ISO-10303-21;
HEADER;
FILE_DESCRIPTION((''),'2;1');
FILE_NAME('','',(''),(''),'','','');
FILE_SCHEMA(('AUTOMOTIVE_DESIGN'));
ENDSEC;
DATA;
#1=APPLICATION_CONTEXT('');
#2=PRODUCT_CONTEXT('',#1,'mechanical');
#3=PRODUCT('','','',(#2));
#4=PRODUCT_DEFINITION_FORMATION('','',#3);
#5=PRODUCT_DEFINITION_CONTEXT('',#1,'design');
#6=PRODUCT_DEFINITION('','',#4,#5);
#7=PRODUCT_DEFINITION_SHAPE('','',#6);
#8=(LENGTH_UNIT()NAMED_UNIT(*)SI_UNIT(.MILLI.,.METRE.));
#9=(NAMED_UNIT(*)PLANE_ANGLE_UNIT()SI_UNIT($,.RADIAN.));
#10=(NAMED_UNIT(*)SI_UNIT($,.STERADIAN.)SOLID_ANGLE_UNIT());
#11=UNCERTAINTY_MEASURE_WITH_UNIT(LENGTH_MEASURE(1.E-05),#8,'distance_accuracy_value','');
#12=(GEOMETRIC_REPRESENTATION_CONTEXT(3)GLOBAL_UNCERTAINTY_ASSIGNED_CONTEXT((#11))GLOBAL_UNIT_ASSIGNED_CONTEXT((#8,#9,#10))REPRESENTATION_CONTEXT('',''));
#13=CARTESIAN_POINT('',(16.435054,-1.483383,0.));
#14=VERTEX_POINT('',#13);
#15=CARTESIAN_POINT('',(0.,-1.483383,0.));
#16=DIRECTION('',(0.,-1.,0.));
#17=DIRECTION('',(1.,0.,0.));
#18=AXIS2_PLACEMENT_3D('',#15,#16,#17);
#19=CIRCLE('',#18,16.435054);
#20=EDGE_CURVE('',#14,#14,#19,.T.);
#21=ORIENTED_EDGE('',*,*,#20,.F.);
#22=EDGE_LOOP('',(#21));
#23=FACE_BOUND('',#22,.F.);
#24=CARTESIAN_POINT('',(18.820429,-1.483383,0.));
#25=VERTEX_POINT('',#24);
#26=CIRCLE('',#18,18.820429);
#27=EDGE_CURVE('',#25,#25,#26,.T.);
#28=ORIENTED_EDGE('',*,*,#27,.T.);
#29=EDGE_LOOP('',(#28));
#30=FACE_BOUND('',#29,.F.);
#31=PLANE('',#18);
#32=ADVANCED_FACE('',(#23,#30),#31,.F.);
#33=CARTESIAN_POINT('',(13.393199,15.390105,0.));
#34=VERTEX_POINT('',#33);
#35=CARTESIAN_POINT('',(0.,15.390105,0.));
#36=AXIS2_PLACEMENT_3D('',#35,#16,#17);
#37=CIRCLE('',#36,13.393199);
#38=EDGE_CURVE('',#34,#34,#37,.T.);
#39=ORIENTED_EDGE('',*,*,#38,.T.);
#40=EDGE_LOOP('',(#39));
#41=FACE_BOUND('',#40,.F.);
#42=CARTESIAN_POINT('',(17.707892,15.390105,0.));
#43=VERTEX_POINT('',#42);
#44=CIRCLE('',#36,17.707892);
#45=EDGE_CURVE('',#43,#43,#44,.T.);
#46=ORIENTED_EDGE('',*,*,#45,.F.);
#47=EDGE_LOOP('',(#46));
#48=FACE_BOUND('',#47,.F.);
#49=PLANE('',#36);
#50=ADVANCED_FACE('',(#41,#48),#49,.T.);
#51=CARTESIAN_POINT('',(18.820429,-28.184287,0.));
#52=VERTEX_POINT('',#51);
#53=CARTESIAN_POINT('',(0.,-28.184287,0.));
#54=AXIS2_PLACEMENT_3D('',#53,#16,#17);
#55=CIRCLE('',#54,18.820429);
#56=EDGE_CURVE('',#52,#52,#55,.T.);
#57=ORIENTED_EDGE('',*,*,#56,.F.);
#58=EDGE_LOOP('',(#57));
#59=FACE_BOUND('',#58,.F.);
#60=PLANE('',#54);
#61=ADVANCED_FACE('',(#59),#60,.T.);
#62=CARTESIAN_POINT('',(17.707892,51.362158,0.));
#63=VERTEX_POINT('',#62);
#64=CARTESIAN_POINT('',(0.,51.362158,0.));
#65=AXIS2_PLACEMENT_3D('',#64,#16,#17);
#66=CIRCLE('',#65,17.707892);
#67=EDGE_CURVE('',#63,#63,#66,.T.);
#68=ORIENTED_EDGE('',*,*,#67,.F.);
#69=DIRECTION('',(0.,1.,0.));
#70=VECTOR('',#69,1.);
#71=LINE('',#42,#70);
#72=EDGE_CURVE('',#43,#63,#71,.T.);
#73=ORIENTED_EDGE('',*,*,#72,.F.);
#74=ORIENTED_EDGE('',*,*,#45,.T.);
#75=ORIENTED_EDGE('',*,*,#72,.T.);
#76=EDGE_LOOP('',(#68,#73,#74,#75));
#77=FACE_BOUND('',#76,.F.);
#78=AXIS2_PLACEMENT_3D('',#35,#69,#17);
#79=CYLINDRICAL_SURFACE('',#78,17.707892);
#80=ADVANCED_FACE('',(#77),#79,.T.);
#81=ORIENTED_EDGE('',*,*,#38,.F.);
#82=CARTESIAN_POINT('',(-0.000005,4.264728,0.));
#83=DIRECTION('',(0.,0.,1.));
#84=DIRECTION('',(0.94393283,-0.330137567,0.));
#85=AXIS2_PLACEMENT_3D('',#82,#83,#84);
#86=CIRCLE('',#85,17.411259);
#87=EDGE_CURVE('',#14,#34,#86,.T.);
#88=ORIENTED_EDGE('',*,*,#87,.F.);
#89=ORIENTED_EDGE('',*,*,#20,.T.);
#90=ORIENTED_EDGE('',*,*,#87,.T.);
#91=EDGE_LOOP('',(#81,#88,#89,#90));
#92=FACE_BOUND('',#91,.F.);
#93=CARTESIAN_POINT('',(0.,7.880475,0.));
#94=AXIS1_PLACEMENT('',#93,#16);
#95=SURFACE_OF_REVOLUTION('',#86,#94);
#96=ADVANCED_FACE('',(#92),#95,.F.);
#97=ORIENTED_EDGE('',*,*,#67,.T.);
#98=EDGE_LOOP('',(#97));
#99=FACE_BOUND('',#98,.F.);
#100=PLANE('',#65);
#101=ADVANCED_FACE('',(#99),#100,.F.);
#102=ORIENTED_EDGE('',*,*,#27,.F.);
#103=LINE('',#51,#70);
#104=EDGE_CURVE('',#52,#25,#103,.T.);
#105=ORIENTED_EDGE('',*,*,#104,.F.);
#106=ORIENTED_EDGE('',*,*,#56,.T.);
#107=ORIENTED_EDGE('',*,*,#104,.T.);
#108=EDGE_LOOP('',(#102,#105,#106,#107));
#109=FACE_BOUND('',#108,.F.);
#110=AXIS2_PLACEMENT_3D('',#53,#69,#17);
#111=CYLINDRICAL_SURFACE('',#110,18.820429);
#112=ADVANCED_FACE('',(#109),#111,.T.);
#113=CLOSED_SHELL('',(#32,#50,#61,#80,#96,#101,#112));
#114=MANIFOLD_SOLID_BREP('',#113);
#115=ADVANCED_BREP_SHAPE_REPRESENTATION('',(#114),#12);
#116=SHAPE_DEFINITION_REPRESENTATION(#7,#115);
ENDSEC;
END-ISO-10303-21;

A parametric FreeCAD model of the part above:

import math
import FreeCAD as App
import Part
import Sketcher
Q = App.Units.Quantity

doc = App.newDocument("Part")
body = doc.addObject("PartDesign::Body", "Body")

sketch1 = doc.addObject("Sketcher::SketchObject", "Sketch")
body.addObject(sketch1)
sketch1.AttachmentSupport = (doc.XY_Plane, [""])
sketch1.MapMode = "FlatFace"
sketch1.addGeometry([
    Part.LineSegment(App.Vector(13.4, 15.4, 0), App.Vector(17.7, 15.4, 0)),
    Part.LineSegment(App.Vector(17.7, 15.4, 0), App.Vector(17.7, 51.4, 0)),
    Part.LineSegment(App.Vector(17.7, 51.4, 0), App.Vector(0, 51.4, 0)),
    Part.LineSegment(App.Vector(0, 51.4, 0), App.Vector(0, -28.2, 0)),
    Part.LineSegment(App.Vector(0, -28.2, 0), App.Vector(18.8, -28.2, 0)),
    Part.LineSegment(App.Vector(18.8, -28.2, 0), App.Vector(18.8, -1.5, 0)),
    Part.LineSegment(App.Vector(18.8, -1.5, 0), App.Vector(16.4, -1.5, 0)),
    Part.ArcOfCircle(Part.Circle(App.Vector(0, 4.3, 0), App.Vector(0, 0, 1), 17.4), math.radians(-19), math.radians(40)),
], False)
sketch1.addConstraint([
    Sketcher.Constraint("Coincident", 0, 2, 1, 1),
    Sketcher.Constraint("Coincident", 1, 2, 2, 1),
    Sketcher.Constraint("Coincident", 2, 2, 3, 1),
    Sketcher.Constraint("Coincident", 3, 2, 4, 1),
    Sketcher.Constraint("Coincident", 4, 2, 5, 1),
    Sketcher.Constraint("Coincident", 5, 2, 6, 1),
    Sketcher.Constraint("Coincident", 6, 2, 7, 1),
    Sketcher.Constraint("Coincident", 7, 2, 0, 1),
    Sketcher.Constraint("Horizontal", 0),
    Sketcher.Constraint("Vertical", 1),
    Sketcher.Constraint("Horizontal", 2),
    Sketcher.Constraint("Vertical", 3),
    Sketcher.Constraint("Horizontal", 4),
    Sketcher.Constraint("Vertical", 5),
    Sketcher.Constraint("Horizontal", 6),
    Sketcher.Constraint("PointOnObject", 2, 2, -2),
    Sketcher.Constraint("Radius", 7, Q("17.411259 mm")),
    Sketcher.Constraint("DistanceX", 4, 1, 4, 2, Q("18.820429 mm")),
    Sketcher.Constraint("DistanceX", -1, 1, 7, 2, Q("13.393199 mm")),
    Sketcher.Constraint("DistanceX", 0, 1, 0, 2, Q("4.314693 mm")),
    Sketcher.Constraint("DistanceX", 6, 2, 6, 1, Q("2.385375 mm")),
    Sketcher.Constraint("DistanceY", 1, 1, 1, 2, Q("35.972053 mm")),
    Sketcher.Constraint("DistanceY", 3, 2, 3, 1, Q("79.546445 mm")),
    Sketcher.Constraint("DistanceY", 5, 1, 5, 2, Q("26.700904 mm")),
    Sketcher.Constraint("DistanceY", -1, 1, 7, 3, Q("4.264728 mm")),
])
revolution = doc.addObject("PartDesign::Revolution", "Revolution")
body.addObject(revolution)
revolution.Profile = sketch1
revolution.ReferenceAxis = (sketch1, ["V_Axis"])
revolution.Angle = 360

doc.recompute()
